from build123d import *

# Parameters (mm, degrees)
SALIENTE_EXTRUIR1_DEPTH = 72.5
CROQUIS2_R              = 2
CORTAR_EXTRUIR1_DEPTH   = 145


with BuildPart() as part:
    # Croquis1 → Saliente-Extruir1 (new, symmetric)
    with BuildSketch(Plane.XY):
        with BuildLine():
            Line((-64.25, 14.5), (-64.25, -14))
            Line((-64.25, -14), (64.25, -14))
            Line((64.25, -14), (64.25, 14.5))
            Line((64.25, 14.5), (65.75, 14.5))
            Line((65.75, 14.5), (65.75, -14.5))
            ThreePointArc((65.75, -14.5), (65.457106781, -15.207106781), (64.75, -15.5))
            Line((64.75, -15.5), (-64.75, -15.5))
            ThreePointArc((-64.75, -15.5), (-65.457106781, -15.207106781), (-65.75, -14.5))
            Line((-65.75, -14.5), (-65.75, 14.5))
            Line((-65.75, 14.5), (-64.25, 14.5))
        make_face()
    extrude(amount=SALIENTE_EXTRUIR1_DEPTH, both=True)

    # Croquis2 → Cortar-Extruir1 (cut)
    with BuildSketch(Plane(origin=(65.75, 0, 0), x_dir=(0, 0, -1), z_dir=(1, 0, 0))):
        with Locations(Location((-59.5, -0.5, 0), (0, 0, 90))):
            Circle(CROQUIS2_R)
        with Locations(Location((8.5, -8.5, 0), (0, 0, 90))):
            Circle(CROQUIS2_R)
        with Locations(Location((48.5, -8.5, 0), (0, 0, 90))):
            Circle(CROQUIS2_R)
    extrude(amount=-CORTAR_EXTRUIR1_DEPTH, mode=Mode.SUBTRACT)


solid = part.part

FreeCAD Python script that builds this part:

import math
import FreeCAD as App
import Part
import Sketcher
from FreeCAD import Vector
Q = App.Units.Quantity

doc = App.newDocument("Part")
body = doc.addObject("PartDesign::Body", "Body")

# Sketch on XY plane
sketch1 = body.newObject("Sketcher::SketchObject", "Sketch")
sketch1.AttachmentSupport = (doc.getObject("XY_Plane"), [""])
sketch1.MapMode = "FlatFace"
sketch1.addGeometry(Part.LineSegment(Vector(-64.2, -14, 0), Vector(-64.2, 14.5, 0)), False)
sketch1.addGeometry(Part.LineSegment(Vector(-64.2, 14.5, 0), Vector(-65.8, 14.5, 0)), False)
sketch1.addGeometry(Part.LineSegment(Vector(-65.8, 14.5, 0), Vector(-65.8, -14.5, 0)), False)
sketch1.addGeometry(Part.ArcOfCircle(Part.Circle(Vector(-64.7, -14.5, 0), Vector(0, 0, 1), 1), math.radians(-180), math.radians(-90)), False)
sketch1.addGeometry(Part.LineSegment(Vector(-64.8, -15.5, 0), Vector(64.8, -15.5, 0)), False)
sketch1.addGeometry(Part.ArcOfCircle(Part.Circle(Vector(64.7, -14.5, 0), Vector(0, 0, 1), 1), math.radians(-90), math.radians(0)), False)
sketch1.addGeometry(Part.LineSegment(Vector(65.8, -14.5, 0), Vector(65.8, 14.5, 0)), False)
sketch1.addGeometry(Part.LineSegment(Vector(65.8, 14.5, 0), Vector(64.2, 14.5, 0)), False)
sketch1.addGeometry(Part.LineSegment(Vector(64.2, 14.5, 0), Vector(64.2, -14, 0)), False)
sketch1.addGeometry(Part.LineSegment(Vector(64.2, -14, 0), Vector(-64.2, -14, 0)), False)
sketch1.addConstraint(Sketcher.Constraint("Coincident", 0, 2, 1, 1))
sketch1.addConstraint(Sketcher.Constraint("Coincident", 1, 2, 2, 1))
sketch1.addConstraint(Sketcher.Constraint("Tangent", 2, 2, 3, 1))
sketch1.addConstraint(Sketcher.Constraint("Tangent", 3, 2, 4, 1))
sketch1.addConstraint(Sketcher.Constraint("Tangent", 4, 2, 5, 1))
sketch1.addConstraint(Sketcher.Constraint("Tangent", 5, 2, 6, 1))
sketch1.addConstraint(Sketcher.Constraint("Coincident", 6, 2, 7, 1))
sketch1.addConstraint(Sketcher.Constraint("Coincident", 7, 2, 8, 1))
sketch1.addConstraint(Sketcher.Constraint("Coincident", 8, 2, 9, 1))
sketch1.addConstraint(Sketcher.Constraint("Coincident", 9, 2, 0, 1))
sketch1.addConstraint(Sketcher.Constraint("Vertical", 0))
sketch1.addConstraint(Sketcher.Constraint("Horizontal", 1))
sketch1.addConstraint(Sketcher.Constraint("Vertical", 2))
sketch1.addConstraint(Sketcher.Constraint("Horizontal", 4))
sketch1.addConstraint(Sketcher.Constraint("Vertical", 6))
sketch1.addConstraint(Sketcher.Constraint("Horizontal", 7))
sketch1.addConstraint(Sketcher.Constraint("Vertical", 8))
sketch1.addConstraint(Sketcher.Constraint("Horizontal", 9))
sketch1.addConstraint(Sketcher.Constraint("Equal", 3, 5))
sketch1.addConstraint(Sketcher.Constraint("Symmetric", 1, 2, 5, 2, -1, 1))
sketch1.addConstraint(Sketcher.Constraint("Symmetric", 0, 2, 7, 2, -2))
sketch1.addConstraint(Sketcher.Constraint("Radius", 3, Q("1 mm")))
sketch1.addConstraint(Sketcher.Constraint("DistanceY", 2, 2, 2, 1, Q("29 mm")))
sketch1.addConstraint(Sketcher.Constraint("DistanceX", 1, 2, 1, 1, Q("1.5 mm")))
sketch1.addConstraint(Sketcher.Constraint("DistanceX", 4, 1, 4, 2, Q("129.5 mm")))
sketch1.addConstraint(Sketcher.Constraint("DistanceY", 0, 1, 0, 2, Q("28.5 mm")))
pad1 = body.newObject("PartDesign::Pad", "Pad")
pad1.Profile = sketch1
pad1.Length = 145
pad1.Midplane = True

# Sketch on YZ plane
sketch2 = body.newObject("Sketcher::SketchObject", "Sketch001")
sketch2.AttachmentSupport = (doc.getObject("YZ_Plane"), [""])
sketch2.MapMode = "FlatFace"
sketch2.AttachmentOffset = App.Placement(Vector(0, 0, 65.75), App.Rotation())
sketch2.addGeometry(Part.Circle(Vector(-0.5, 59.5, 0), Vector(0, 0, 1), 2), False)
sketch2.addGeometry(Part.Circle(Vector(-8.5, -8.5, 0), Vector(0, 0, 1), 2), False)
sketch2.addGeometry(Part.Circle(Vector(-8.5, -48.5, 0), Vector(0, 0, 1), 2), False)
sketch2.addConstraint(Sketcher.Constraint("Equal", 0, 1))
sketch2.addConstraint(Sketcher.Constraint("Equal", 1, 2))
sketch2.addConstraint(Sketcher.Constraint("Vertical", 1, 3, 2, 3))
sketch2.addConstraint(Sketcher.Constraint("Diameter", 0, Q("4 mm")))
sketch2.addConstraint(Sketcher.Constraint("DistanceX", 1, 3, 0, 3, Q("8 mm")))
sketch2.addConstraint(Sketcher.Constraint("DistanceY", 1, 3, 0, 3, Q("68 mm")))
sketch2.addConstraint(Sketcher.Constraint("DistanceY", 2, 3, 1, 3, Q("40 mm")))
sketch2.addConstraint(Sketcher.Constraint("DistanceX", 0, 3, -1, 1, Q("0.5 mm")))
sketch2.addConstraint(Sketcher.Constraint("DistanceY", -1, 1, 0, 3, Q("59.5 mm")))
pocket1 = body.newObject("PartDesign::Pocket", "Pocket")
pocket1.Profile = sketch2
pocket1.Length = 145

doc.recompute()
